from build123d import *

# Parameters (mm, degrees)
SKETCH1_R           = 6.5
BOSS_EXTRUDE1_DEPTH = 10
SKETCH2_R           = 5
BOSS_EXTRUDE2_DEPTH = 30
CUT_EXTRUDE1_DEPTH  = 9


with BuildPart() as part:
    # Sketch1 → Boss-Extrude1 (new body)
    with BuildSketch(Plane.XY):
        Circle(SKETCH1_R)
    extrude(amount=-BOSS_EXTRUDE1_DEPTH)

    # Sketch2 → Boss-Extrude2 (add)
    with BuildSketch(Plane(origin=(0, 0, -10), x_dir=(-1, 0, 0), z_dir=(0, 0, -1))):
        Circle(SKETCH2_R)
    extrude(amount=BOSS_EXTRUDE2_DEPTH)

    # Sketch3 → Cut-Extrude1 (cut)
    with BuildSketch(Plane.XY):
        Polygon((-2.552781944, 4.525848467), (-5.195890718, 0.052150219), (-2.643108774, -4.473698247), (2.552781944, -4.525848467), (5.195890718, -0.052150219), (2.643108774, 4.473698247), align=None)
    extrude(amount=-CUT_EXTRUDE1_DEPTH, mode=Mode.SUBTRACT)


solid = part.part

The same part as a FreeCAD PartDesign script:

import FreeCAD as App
import Part
import Sketcher
from FreeCAD import Vector
Q = App.Units.Quantity


def add_polygon(sketch, points):
    """Adds a closed chain of lines whose ends are joined by coincident constraints."""
    first, n = sketch.GeometryCount, len(points)
    for a, b in zip(points, points[1:] + points[:1]):
        sketch.addGeometry(Part.LineSegment(App.Vector(*a, 0), App.Vector(*b, 0)), False)
    for i in range(n):
        sketch.addConstraint(Sketcher.Constraint("Coincident", first + i, 2, first + (i + 1) % n, 1))

doc = App.newDocument("Part")
body = doc.addObject("PartDesign::Body", "Body")

sketch1 = body.newObject("Sketcher::SketchObject", "Sketch")
sketch1.AttachmentSupport = (doc.getObject("XY_Plane"), [""])
sketch1.MapMode = "FlatFace"
sketch1.addGeometry(Part.Circle(Vector(0, 0, 0), Vector(0, 0, 1), 6.5), False)
sketch1.addConstraint([
    Sketcher.Constraint("Coincident", 0, 3, -1, 1),
    Sketcher.Constraint("Diameter", 0, Q("13 mm")),
])
pad1 = body.newObject("PartDesign::Pad", "Pad")
pad1.Profile = sketch1
pad1.Length = 10
pad1.Reversed = True

sketch2 = body.newObject("Sketcher::SketchObject", "Sketch001")
sketch2.AttachmentSupport = (doc.getObject("XY_Plane"), [""])
sketch2.MapMode = "FlatFace"
sketch2.AttachmentOffset = App.Placement(Vector(0, 0, -10), App.Rotation())
sketch2.addGeometry(Part.Circle(Vector(0, 0, 0), Vector(0, 0, 1), 5), False)
sketch2.addConstraint([
    Sketcher.Constraint("Coincident", 0, 3, -1, 1),
    Sketcher.Constraint("Diameter", 0, Q("10 mm")),
])
pad2 = body.newObject("PartDesign::Pad", "Pad001")
pad2.Profile = sketch2
pad2.Length = 30
pad2.Reversed = True

sketch3 = body.newObject("Sketcher::SketchObject", "Sketch002")
sketch3.AttachmentSupport = (doc.getObject("XY_Plane"), [""])
sketch3.MapMode = "FlatFace"
add_polygon(sketch3, [(-2.552782, 4.525848), (-5.195891, 0.05215), (-2.643109, -4.473698), (2.552782, -4.525848), (5.195891, -0.05215), (2.643109, 4.473698)])
sketch3.addConstraint([
    Sketcher.Constraint("Symmetric", 0, 2, 3, 2, -1, 1),
    Sketcher.Constraint("Symmetric", 1, 2, 4, 2, -1, 1),
    Sketcher.Constraint("Symmetric", 2, 2, 5, 2, -1, 1),
    Sketcher.Constraint("Equal", 0, 1),
    Sketcher.Constraint("Equal", 1, 2),
    Sketcher.Constraint("DistanceY", 2, 2, 0, 2, Q("4.577999 mm")),
    Sketcher.Constraint("DistanceX", 1, 2, 3, 2, Q("7.838999 mm")),
    Sketcher.Constraint("DistanceY", 1, 2, -1, 1, Q("4.473698 mm")),
    Sketcher.Constraint("DistanceY", 2, 2, 3, 2, Q("4.473698 mm")),
])
pocket1 = body.newObject("PartDesign::Pocket", "Pocket")
pocket1.Profile = sketch3
pocket1.Length = 9

doc.recompute()
